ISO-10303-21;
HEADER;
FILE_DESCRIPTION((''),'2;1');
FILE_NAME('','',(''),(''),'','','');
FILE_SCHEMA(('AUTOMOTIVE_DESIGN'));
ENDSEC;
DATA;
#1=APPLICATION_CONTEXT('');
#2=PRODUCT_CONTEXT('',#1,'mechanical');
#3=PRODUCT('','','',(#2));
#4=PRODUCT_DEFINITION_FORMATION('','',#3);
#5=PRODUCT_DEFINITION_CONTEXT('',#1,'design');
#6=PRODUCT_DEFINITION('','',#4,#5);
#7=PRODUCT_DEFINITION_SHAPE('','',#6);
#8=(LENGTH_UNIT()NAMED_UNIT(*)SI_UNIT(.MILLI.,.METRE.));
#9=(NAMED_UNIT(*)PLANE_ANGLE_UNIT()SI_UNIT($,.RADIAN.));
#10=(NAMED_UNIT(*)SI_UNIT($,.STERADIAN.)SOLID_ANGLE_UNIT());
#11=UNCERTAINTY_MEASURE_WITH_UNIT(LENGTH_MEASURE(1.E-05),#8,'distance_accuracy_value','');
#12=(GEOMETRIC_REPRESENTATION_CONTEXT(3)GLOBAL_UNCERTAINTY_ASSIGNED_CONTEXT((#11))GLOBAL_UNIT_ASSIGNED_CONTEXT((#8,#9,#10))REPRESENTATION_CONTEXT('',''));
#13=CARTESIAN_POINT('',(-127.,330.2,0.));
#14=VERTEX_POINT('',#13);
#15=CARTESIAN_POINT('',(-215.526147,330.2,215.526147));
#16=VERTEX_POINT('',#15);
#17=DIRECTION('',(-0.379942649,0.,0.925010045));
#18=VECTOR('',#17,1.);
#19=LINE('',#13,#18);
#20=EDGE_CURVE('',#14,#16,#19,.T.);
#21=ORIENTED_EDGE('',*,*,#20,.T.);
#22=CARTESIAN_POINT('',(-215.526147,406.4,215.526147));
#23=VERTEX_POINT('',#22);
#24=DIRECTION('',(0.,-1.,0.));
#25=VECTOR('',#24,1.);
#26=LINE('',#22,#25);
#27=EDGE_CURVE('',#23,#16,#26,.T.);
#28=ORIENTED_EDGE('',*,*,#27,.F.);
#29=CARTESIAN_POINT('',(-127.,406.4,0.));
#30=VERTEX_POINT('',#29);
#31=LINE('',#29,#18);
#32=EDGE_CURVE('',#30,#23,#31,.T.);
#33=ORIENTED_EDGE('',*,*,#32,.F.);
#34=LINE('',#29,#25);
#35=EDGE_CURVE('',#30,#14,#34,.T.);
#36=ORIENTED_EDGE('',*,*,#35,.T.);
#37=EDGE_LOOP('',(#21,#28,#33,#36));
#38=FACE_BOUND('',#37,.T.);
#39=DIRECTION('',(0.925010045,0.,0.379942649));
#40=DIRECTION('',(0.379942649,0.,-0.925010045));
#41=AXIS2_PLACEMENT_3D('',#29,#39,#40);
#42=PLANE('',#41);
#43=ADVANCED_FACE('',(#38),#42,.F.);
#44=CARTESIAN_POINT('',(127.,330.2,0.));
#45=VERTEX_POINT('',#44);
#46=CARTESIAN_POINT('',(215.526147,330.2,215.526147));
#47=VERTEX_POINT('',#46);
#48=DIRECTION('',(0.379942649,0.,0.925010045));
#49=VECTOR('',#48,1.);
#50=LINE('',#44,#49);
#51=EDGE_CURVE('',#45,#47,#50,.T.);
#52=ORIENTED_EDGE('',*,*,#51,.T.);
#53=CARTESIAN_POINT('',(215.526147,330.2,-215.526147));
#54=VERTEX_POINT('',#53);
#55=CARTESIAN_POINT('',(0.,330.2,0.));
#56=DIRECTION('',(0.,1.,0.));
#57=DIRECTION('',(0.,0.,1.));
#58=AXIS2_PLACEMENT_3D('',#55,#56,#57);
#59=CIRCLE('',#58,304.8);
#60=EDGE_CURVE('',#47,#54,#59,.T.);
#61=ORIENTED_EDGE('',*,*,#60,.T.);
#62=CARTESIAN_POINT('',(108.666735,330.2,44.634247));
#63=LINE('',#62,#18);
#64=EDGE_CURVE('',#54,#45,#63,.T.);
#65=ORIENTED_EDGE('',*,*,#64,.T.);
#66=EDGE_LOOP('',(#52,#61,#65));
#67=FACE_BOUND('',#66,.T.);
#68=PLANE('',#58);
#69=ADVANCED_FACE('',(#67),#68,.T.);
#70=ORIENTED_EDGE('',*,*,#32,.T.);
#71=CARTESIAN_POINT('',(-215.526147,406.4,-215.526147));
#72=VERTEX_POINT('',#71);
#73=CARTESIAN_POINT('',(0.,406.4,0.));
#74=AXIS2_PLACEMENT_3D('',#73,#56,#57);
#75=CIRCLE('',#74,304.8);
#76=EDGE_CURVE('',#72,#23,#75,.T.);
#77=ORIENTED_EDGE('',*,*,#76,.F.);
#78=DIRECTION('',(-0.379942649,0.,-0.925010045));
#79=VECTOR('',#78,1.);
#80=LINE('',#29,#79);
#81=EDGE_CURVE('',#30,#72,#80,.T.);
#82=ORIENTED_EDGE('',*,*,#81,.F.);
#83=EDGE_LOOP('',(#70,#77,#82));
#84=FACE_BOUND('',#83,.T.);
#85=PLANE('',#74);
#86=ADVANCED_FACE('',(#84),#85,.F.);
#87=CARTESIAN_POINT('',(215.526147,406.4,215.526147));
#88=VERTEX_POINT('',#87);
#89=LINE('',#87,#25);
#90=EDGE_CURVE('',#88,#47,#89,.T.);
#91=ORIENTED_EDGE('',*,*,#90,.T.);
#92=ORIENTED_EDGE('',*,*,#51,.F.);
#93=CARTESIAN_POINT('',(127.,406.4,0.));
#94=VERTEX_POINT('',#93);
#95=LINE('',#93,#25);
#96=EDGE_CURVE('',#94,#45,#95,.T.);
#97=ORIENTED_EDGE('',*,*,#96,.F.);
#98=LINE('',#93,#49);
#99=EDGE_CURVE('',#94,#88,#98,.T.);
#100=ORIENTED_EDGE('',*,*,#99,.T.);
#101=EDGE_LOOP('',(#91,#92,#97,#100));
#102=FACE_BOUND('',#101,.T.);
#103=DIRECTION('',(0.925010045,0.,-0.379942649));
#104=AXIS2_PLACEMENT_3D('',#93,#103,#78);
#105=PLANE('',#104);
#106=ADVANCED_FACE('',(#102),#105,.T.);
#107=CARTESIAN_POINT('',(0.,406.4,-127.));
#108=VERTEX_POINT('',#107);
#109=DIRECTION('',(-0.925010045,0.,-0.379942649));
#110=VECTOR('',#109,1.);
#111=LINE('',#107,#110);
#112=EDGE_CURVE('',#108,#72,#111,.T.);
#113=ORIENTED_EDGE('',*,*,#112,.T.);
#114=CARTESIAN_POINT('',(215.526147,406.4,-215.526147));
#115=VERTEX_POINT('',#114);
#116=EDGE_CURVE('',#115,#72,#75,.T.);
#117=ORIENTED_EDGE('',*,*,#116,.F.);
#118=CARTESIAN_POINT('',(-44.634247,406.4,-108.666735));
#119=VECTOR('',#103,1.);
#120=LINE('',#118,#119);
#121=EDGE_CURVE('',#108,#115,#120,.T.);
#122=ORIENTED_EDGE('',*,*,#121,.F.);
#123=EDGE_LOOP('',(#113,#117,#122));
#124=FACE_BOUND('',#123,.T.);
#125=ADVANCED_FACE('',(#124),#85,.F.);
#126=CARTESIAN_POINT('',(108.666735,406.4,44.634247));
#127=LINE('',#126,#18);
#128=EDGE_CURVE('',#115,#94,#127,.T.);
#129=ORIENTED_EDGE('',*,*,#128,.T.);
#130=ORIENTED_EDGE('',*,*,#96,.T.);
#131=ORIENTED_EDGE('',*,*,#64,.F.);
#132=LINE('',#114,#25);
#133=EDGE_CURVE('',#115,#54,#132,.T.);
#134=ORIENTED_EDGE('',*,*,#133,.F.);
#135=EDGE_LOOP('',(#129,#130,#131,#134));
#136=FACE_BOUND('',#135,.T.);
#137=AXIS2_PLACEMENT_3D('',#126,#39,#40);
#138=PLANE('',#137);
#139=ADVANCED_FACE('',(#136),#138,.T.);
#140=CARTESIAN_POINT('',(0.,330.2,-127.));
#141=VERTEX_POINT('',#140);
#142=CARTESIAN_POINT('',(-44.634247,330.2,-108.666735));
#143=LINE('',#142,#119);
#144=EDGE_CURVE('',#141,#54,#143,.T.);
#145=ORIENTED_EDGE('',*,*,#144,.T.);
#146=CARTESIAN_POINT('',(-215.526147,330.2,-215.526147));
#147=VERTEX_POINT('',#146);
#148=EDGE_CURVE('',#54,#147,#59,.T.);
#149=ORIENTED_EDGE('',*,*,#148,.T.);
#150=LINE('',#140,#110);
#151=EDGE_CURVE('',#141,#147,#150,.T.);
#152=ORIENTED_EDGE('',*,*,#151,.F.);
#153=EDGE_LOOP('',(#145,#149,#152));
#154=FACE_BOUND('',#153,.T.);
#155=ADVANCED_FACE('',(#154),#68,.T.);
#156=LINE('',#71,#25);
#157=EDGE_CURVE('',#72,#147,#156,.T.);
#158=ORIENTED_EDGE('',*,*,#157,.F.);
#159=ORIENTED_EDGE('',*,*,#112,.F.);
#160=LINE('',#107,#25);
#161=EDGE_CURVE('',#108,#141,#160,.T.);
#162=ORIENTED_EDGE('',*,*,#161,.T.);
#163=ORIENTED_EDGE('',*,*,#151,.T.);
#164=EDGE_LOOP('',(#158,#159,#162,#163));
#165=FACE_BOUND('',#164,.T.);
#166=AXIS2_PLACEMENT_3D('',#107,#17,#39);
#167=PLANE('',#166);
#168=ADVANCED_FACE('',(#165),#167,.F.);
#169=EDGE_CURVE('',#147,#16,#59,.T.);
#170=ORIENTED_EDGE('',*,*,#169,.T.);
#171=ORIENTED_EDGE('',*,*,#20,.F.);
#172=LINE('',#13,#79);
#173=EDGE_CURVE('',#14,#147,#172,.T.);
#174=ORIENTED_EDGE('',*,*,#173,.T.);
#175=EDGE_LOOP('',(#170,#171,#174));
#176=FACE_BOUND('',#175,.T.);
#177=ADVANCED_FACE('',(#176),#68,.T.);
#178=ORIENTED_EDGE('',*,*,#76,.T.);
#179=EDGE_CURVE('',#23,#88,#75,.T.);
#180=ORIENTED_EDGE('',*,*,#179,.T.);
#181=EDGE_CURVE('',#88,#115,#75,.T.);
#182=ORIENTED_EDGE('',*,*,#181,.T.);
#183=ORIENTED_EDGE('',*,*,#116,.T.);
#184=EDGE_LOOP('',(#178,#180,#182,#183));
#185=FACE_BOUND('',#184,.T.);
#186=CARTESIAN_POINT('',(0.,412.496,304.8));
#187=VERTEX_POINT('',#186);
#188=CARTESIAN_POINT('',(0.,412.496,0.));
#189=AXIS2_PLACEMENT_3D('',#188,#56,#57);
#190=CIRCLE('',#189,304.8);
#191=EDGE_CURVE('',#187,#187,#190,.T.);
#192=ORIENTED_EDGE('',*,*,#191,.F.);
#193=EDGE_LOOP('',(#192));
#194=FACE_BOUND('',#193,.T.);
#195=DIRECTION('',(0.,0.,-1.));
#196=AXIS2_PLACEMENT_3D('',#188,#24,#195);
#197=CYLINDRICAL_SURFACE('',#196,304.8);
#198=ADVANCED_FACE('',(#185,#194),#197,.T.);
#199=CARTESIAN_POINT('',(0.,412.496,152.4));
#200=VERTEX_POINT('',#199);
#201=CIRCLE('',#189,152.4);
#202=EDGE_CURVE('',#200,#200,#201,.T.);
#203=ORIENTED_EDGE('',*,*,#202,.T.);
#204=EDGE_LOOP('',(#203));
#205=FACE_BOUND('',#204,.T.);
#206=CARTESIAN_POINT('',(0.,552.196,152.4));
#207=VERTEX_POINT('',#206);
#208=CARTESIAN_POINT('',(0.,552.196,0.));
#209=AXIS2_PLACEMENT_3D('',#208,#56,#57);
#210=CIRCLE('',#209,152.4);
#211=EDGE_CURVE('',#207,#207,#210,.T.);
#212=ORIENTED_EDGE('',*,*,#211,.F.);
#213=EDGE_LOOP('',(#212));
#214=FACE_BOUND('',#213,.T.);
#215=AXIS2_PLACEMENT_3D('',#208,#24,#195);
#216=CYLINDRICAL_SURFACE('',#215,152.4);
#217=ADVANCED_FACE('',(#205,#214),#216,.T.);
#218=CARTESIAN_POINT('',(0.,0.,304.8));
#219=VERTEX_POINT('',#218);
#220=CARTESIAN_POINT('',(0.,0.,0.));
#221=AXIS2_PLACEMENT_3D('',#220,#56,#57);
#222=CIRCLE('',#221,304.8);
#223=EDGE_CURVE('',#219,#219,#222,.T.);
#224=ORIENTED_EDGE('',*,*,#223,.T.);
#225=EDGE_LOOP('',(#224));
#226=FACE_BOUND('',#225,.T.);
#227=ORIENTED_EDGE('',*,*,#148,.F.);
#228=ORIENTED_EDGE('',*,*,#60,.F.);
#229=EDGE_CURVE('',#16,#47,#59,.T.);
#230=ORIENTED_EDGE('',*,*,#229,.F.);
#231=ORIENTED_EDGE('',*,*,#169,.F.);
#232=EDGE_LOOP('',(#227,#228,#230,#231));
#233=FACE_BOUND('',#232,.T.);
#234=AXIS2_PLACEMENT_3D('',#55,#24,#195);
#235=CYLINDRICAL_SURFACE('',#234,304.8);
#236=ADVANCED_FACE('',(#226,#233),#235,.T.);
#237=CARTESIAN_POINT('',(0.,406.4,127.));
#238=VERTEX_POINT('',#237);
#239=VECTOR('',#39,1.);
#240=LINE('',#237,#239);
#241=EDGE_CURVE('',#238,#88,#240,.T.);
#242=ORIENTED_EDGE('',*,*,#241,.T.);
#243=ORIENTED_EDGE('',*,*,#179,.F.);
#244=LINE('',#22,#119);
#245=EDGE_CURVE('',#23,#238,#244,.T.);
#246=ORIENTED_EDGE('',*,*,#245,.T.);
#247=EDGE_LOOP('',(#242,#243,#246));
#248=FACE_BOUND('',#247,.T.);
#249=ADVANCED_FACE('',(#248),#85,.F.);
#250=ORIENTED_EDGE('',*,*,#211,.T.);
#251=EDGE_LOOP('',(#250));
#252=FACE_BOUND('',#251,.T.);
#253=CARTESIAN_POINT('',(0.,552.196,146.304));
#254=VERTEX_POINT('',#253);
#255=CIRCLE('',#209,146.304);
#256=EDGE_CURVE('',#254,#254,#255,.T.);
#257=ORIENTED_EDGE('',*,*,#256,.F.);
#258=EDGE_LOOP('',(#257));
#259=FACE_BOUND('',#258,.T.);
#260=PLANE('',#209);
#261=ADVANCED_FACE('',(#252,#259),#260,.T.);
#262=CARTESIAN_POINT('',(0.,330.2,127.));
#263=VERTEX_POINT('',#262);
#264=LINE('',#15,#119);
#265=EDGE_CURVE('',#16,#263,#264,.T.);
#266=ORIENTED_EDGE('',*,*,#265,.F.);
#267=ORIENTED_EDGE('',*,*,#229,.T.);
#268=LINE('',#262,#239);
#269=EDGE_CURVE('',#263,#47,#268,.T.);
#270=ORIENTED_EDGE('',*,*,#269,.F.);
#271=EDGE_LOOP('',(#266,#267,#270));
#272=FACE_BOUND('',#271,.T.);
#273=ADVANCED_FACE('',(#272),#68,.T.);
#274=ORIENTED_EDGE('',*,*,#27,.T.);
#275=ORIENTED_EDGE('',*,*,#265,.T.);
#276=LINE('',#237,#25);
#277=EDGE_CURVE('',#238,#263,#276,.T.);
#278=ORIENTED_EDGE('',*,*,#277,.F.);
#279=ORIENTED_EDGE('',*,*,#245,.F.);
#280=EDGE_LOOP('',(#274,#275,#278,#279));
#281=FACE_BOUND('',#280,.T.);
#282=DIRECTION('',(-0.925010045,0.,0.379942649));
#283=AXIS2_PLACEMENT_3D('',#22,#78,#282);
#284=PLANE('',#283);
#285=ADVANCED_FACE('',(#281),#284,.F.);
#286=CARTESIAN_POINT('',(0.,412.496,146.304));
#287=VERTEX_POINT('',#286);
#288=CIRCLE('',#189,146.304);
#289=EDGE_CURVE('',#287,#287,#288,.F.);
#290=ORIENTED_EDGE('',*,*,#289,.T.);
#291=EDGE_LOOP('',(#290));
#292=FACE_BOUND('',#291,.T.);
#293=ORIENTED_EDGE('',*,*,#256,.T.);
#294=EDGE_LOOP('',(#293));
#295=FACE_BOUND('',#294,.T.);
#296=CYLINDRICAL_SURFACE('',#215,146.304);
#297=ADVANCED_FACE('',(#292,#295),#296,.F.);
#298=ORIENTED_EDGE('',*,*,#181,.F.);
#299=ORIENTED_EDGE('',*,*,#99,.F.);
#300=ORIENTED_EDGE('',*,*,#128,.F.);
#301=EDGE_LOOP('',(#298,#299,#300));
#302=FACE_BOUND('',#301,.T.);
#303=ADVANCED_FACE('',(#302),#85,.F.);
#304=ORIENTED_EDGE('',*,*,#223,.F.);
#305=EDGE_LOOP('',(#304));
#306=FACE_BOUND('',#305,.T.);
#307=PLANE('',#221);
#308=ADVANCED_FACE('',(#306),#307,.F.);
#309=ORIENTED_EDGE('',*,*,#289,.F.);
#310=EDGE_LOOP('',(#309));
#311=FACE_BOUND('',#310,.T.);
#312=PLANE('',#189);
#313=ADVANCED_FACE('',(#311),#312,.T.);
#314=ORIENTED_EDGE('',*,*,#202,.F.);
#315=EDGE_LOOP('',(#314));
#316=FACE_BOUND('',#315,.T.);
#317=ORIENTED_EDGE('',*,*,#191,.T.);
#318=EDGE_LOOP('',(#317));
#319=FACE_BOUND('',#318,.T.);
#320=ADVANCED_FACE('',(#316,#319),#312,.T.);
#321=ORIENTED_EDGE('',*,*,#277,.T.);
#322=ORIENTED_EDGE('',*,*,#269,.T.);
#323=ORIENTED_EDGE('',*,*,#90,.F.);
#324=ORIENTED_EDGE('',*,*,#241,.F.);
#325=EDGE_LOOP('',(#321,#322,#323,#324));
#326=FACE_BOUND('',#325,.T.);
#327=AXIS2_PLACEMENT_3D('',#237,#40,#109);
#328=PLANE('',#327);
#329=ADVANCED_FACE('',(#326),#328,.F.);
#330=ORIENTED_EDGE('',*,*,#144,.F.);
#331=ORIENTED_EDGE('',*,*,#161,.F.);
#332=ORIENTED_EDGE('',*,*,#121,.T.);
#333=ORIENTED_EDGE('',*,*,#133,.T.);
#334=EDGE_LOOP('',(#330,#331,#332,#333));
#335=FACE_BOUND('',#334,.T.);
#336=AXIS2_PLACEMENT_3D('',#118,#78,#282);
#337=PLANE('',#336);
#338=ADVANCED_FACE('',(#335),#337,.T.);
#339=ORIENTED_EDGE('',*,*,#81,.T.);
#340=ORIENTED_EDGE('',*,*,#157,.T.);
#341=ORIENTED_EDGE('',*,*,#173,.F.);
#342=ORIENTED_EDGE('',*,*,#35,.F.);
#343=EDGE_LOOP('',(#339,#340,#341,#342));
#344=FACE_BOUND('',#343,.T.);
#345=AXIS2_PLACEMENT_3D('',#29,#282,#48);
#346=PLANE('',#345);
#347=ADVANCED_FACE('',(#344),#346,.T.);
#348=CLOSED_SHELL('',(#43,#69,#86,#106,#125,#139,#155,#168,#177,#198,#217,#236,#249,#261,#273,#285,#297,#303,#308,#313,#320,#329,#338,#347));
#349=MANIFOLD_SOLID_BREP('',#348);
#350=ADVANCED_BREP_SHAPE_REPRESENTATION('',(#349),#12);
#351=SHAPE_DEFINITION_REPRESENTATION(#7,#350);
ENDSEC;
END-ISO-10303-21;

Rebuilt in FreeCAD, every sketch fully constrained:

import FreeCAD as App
import Part
import Sketcher
from FreeCAD import Vector
Q = App.Units.Quantity

doc = App.newDocument("Part")
body = doc.addObject("PartDesign::Body", "Body")

sketch1 = body.newObject("Sketcher::SketchObject", "Sketch")
sketch1.AttachmentSupport = (doc.getObject("XZ_Plane"), [""])
sketch1.MapMode = "FlatFace"
sketch1.addGeometry(Part.Circle(Vector(0, 0, 0), Vector(0, 0, 1), 305), False)
sketch1.addConstraint([
    Sketcher.Constraint("Coincident", 0, 3, -1, 1),
    Sketcher.Constraint("Diameter", 0, Q("24 in")),
])
pad1 = body.newObject("PartDesign::Pad", "Pad")
pad1.Profile = sketch1
pad1.Length = Q("13 in")
pad1.Reversed = True

sketch2 = body.newObject("Sketcher::SketchObject", "Sketch001")
sketch2.AttachmentSupport = (doc.getObject("XZ_Plane"), [""])
sketch2.MapMode = "FlatFace"
sketch2.AttachmentOffset = App.Placement(Vector(0, 0, -13 * 25.4), App.Rotation())
sketch2.addGeometry([
    Part.LineSegment(Vector(-127, 0, 0), Vector(-216, 216, 0)),
    Part.LineSegment(Vector(-216, 216, 0), Vector(0, 127, 0)),
    Part.LineSegment(Vector(0, 127, 0), Vector(216, 216, 0)),
    Part.LineSegment(Vector(216, 216, 0), Vector(127, 0, 0)),
    Part.LineSegment(Vector(127, 0, 0), Vector(216, -216, 0)),
    Part.LineSegment(Vector(216, -216, 0), Vector(0, -127, 0)),
    Part.LineSegment(Vector(0, -127, 0), Vector(-216, -216, 0)),
    Part.LineSegment(Vector(-216, -216, 0), Vector(-127, 0, 0)),
], False)
sketch2.addConstraint([
    Sketcher.Constraint("Coincident", 0, 2, 1, 1),
    Sketcher.Constraint("Coincident", 1, 2, 2, 1),
    Sketcher.Constraint("Coincident", 2, 2, 3, 1),
    Sketcher.Constraint("Coincident", 3, 2, 4, 1),
    Sketcher.Constraint("Coincident", 4, 2, 5, 1),
    Sketcher.Constraint("Coincident", 5, 2, 6, 1),
    Sketcher.Constraint("Coincident", 6, 2, 7, 1),
    Sketcher.Constraint("Coincident", 7, 2, 0, 1),
    Sketcher.Constraint("Symmetric", 0, 2, 4, 2, -1, 1),
    Sketcher.Constraint("Symmetric", 1, 2, 5, 2, -1, 1),
    Sketcher.Constraint("Symmetric", 2, 2, 6, 2, -1, 1),
    Sketcher.Constraint("Symmetric", 3, 2, 7, 2, -1, 1),
    Sketcher.Constraint("Symmetric", 0, 2, 2, 2, -2),
    Sketcher.Constraint("PointOnObject", 1, 2, -2),
    Sketcher.Constraint("PointOnObject", 3, 2, -1),
    Sketcher.Constraint("Perpendicular", 0, 2),
    Sketcher.Constraint("Equal", 0, 1),
    Sketcher.Constraint("DistanceY", -1, 1, 1, 2, Q("5 in")),
    Sketcher.Constraint("Distance", 0, 232.99871),
])
pad2 = body.newObject("PartDesign::Pad", "Pad001")
pad2.Profile = sketch2
pad2.Length = Q("3 in")
pad2.Reversed = True

sketch3 = body.newObject("Sketcher::SketchObject", "Sketch002")
sketch3.AttachmentSupport = (doc.getObject("XZ_Plane"), [""])
sketch3.MapMode = "FlatFace"
sketch3.AttachmentOffset = App.Placement(Vector(0, 0, -16 * 25.4), App.Rotation())
sketch3.addGeometry(Part.Circle(Vector(0, 0, 0), Vector(0, 0, 1), 305), False)
sketch3.addConstraint([
    Sketcher.Constraint("Coincident", 0, 3, -1, 1),
    Sketcher.Constraint("Diameter", 0, Q("24 in")),
])
pad3 = body.newObject("PartDesign::Pad", "Pad002")
pad3.Profile = sketch3
pad3.Length = Q("0.24 in")
pad3.Reversed = True

sketch4 = body.newObject("Sketcher::SketchObject", "Sketch003")
sketch4.AttachmentSupport = (doc.getObject("XZ_Plane"), [""])
sketch4.MapMode = "FlatFace"
sketch4.AttachmentOffset = App.Placement(Vector(0, 0, -16.24 * 25.4), App.Rotation())
sketch4.addGeometry([
    Part.Circle(Vector(0, 0, 0), Vector(0, 0, 1), 152),
    Part.Circle(Vector(0, 0, 0), Vector(0, 0, 1), 146),
], False)
sketch4.addConstraint([
    Sketcher.Constraint("Coincident", 0, 3, -1, 1),
    Sketcher.Constraint("Coincident", 1, 3, -1, 1),
    Sketcher.Constraint("Diameter", 0, Q("12 in")),
    Sketcher.Constraint("Diameter", 1, Q("11.52 in")),
])
pad4 = body.newObject("PartDesign::Pad", "Pad003")
pad4.Profile = sketch4
pad4.Length = Q("5.5 in")
pad4.Reversed = True

doc.recompute()
